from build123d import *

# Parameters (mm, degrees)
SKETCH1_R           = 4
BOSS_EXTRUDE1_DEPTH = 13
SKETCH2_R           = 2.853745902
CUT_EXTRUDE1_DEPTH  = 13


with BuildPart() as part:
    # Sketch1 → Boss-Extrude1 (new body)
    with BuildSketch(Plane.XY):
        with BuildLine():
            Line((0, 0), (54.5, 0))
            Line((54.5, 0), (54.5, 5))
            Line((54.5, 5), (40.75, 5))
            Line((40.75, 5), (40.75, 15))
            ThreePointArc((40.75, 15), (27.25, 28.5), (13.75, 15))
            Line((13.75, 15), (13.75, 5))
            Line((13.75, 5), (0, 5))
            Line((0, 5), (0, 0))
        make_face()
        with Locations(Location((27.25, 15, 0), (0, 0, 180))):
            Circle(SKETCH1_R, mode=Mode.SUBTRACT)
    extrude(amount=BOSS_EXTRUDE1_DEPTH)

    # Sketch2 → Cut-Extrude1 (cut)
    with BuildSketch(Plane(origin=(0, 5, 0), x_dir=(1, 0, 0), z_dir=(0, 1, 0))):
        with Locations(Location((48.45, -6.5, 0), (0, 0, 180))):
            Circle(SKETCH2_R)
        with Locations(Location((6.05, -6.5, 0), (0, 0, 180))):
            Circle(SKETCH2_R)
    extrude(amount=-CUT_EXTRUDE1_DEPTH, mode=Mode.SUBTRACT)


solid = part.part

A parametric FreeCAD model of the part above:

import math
import FreeCAD as App
import Part
import Sketcher
Q = App.Units.Quantity

doc = App.newDocument("Part")
body = doc.addObject("PartDesign::Body", "Body")

# Sketch on XY plane
sketch1 = doc.addObject("Sketcher::SketchObject", "Sketch")
body.addObject(sketch1)
sketch1.AttachmentSupport = (doc.XY_Plane, [""])
sketch1.MapMode = "FlatFace"
sketch1.addGeometry([
    Part.LineSegment(App.Vector(0, 0, 0), App.Vector(54.5, 0, 0)),  # 0
    Part.LineSegment(App.Vector(54.5, 0, 0), App.Vector(54.5, 5, 0)),  # 1
    Part.LineSegment(App.Vector(54.5, 5, 0), App.Vector(40.8, 5, 0)),  # 2
    Part.LineSegment(App.Vector(40.8, 5, 0), App.Vector(40.8, 15, 0)),  # 3
    Part.ArcOfCircle(Part.Circle(App.Vector(27.2, 15, 0), App.Vector(0, 0, 1), 13.5), math.radians(0), math.radians(180)),  # 4
    Part.LineSegment(App.Vector(13.8, 15, 0), App.Vector(13.8, 5, 0)),  # 5
    Part.LineSegment(App.Vector(13.8, 5, 0), App.Vector(0, 5, 0)),  # 6
    Part.LineSegment(App.Vector(0, 5, 0), App.Vector(0, 0, 0)),  # 7
    Part.Circle(App.Vector(27.2, 15, 0), App.Vector(0, 0, 1), 4),  # 8
], False)
sketch1.addConstraint([
    Sketcher.Constraint("Coincident", 0, 2, 1, 1),
    Sketcher.Constraint("Coincident", 1, 2, 2, 1),
    Sketcher.Constraint("Coincident", 2, 2, 3, 1),
    Sketcher.Constraint("Tangent", 3, 2, 4, 1),
    Sketcher.Constraint("Tangent", 4, 2, 5, 1),
    Sketcher.Constraint("Coincident", 5, 2, 6, 1),
    Sketcher.Constraint("Coincident", 6, 2, 7, 1),
    Sketcher.Constraint("Coincident", 7, 2, 0, 1),
    Sketcher.Constraint("Horizontal", 0),
    Sketcher.Constraint("Vertical", 1),
    Sketcher.Constraint("Horizontal", 2),
    Sketcher.Constraint("Vertical", 3),
    Sketcher.Constraint("Vertical", 5),
    Sketcher.Constraint("Horizontal", 6),
    Sketcher.Constraint("Vertical", 7),
    Sketcher.Constraint("Coincident", 7, 2, -1, 1),
    Sketcher.Constraint("Coincident", 8, 3, 4, 3),
    Sketcher.Constraint("Horizontal", 2, 2, 5, 2),
    Sketcher.Constraint("Equal", 2, 6),
    Sketcher.Constraint("Diameter", 8, Q("8 mm")),
    Sketcher.Constraint("Radius", 4, Q("13.5 mm")),
    Sketcher.Constraint("DistanceY", 1, 1, 1, 2, Q("5 mm")),
    Sketcher.Constraint("DistanceY", 3, 1, 3, 2, Q("10 mm")),
    Sketcher.Constraint("DistanceX", 0, 1, 0, 2, Q("54.5 mm")),
])
pad1 = doc.addObject("PartDesign::Pad", "Pad")
body.addObject(pad1)
pad1.Profile = sketch1
pad1.Length = 13

# Sketch on XZ plane
sketch2 = doc.addObject("Sketcher::SketchObject", "Sketch001")
body.addObject(sketch2)
sketch2.AttachmentSupport = (doc.XZ_Plane, [""])
sketch2.MapMode = "FlatFace"
sketch2.AttachmentOffset = App.Placement(App.Vector(0, 0, -5), App.Rotation())
sketch2.addGeometry([
    Part.Circle(App.Vector(48.5, 6.5, 0), App.Vector(0, 0, 1), 2.9),
    Part.Circle(App.Vector(6, 6.5, 0), App.Vector(0, 0, 1), 2.9),
], False)
sketch2.addConstraint([
    Sketcher.Constraint("Equal", 0, 1),
    Sketcher.Constraint("Horizontal", 0, 3, 1, 3),
    Sketcher.Constraint("DistanceY", -1, 1, 0, 3, Q("6.5 mm")),
    Sketcher.Constraint("DistanceX", 1, 3, 0, 3, Q("42.4 mm")),
    Sketcher.Constraint("Diameter", 0, Q("5.707492 mm")),
    Sketcher.Constraint("DistanceX", -1, 1, 0, 3, Q("48.45 mm")),
])
pocket1 = doc.addObject("PartDesign::Pocket", "Pocket")
body.addObject(pocket1)
pocket1.Profile = sketch2
pocket1.Length = 13
pocket1.Reversed = True

doc.recompute()
